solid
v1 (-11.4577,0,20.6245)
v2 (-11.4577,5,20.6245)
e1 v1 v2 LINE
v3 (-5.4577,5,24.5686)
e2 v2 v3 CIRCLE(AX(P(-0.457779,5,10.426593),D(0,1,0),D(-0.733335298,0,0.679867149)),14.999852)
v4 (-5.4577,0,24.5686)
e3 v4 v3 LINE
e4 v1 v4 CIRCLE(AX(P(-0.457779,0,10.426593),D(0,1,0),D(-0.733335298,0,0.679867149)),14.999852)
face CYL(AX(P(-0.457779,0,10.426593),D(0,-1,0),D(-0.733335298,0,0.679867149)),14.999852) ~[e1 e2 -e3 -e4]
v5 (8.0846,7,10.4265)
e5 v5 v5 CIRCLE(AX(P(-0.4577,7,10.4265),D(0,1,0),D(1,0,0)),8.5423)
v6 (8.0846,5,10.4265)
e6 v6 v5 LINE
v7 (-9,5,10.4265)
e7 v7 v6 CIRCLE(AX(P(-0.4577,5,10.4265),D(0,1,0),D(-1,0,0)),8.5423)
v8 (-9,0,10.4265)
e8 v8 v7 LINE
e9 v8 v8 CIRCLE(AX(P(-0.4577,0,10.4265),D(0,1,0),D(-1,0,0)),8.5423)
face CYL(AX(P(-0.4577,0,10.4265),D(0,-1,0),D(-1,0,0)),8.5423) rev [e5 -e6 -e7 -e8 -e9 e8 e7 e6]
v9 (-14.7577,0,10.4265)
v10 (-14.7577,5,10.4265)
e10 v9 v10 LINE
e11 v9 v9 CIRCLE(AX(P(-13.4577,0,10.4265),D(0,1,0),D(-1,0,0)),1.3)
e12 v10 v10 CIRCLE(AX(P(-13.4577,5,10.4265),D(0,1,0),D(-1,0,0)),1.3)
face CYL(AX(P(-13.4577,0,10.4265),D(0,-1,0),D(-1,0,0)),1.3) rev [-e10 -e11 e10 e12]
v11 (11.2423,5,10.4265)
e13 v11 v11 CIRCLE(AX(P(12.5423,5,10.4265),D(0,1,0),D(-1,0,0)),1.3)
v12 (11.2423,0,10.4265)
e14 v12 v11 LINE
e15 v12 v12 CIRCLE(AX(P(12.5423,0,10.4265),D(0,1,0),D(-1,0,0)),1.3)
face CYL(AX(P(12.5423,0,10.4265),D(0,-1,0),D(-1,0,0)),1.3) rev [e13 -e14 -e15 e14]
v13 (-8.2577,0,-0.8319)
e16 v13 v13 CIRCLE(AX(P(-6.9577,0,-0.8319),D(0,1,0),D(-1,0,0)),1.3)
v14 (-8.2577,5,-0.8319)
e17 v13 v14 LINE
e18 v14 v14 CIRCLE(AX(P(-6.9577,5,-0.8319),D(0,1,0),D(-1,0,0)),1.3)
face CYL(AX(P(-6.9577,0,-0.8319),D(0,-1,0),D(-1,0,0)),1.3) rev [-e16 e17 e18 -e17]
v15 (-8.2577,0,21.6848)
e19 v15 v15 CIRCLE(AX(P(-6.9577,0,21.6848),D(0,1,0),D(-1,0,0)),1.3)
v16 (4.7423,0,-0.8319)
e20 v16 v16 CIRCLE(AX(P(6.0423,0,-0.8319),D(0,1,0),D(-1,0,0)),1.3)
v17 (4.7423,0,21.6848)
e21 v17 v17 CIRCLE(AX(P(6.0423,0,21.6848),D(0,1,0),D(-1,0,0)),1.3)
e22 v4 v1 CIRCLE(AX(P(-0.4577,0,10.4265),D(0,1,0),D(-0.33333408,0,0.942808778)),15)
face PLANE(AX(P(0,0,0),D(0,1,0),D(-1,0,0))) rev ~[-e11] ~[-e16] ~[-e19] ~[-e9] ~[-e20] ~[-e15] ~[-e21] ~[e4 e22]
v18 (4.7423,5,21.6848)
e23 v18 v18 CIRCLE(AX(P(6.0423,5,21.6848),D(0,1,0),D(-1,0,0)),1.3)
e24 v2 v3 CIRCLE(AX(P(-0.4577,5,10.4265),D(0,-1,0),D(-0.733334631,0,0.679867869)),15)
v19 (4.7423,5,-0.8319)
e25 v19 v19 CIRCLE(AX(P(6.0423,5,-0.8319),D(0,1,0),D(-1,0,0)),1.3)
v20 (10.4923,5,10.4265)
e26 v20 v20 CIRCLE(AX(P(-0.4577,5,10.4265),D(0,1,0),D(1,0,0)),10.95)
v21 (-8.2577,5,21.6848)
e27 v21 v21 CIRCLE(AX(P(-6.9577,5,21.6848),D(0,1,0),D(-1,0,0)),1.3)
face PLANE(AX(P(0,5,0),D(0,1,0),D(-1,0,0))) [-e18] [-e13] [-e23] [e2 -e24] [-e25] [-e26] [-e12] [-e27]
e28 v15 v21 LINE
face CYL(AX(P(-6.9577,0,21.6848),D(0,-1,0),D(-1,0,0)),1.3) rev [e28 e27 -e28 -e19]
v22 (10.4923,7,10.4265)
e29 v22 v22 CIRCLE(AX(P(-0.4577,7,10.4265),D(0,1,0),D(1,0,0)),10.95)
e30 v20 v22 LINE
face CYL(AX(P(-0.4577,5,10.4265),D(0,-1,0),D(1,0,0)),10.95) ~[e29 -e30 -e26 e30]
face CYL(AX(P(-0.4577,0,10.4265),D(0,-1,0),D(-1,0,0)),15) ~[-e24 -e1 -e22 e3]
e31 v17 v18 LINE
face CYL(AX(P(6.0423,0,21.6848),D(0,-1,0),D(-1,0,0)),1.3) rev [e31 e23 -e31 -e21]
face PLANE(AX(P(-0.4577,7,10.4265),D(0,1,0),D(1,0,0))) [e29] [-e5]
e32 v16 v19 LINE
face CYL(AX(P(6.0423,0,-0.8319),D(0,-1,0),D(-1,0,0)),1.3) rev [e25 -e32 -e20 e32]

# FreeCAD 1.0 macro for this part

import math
import FreeCAD as App
import Part
import Sketcher

V = App.Vector

doc = App.newDocument("Part")
body = doc.addObject("PartDesign::Body", "Body")

sketch1 = body.newObject("Sketcher::SketchObject", "Sketch")
sketch1.AttachmentSupport = (doc.getObject("XZ_Plane"), [""])
sketch1.MapMode = "FlatFace"
sketch1.addGeometry([
    Part.ArcOfCircle(Part.Circle(V(-0.5, 10.4, 0), V(0, 0, 1), 15), math.radians(137), math.radians(469)),
    Part.ArcOfCircle(Part.Circle(V(-0.5, 10.4, 0), V(0, 0, 1), 15), math.radians(109), math.radians(137)),
    Part.Circle(V(6, -0.8, 0), V(0, 0, 1), 1.3),
    Part.Circle(V(-7, -0.8, 0), V(0, 0, 1), 1.3),
    Part.Circle(V(12.5, 10.4, 0), V(0, 0, 1), 1.3),
    Part.Circle(V(6, 21.7, 0), V(0, 0, 1), 1.3),
    Part.Circle(V(-0.5, 10.4, 0), V(0, 0, 1), 8.5),
    Part.Circle(V(-13.5, 10.4, 0), V(0, 0, 1), 1.3),
    Part.Circle(V(-7, 21.7, 0), V(0, 0, 1), 1.3),
], False)
sketch1.addConstraint([
    Sketcher.Constraint("Tangent", 0, 1, 1, 2),
    Sketcher.Constraint("Coincident", 1, 1, 0, 2),
    Sketcher.Constraint("Coincident", 6, 3, 0, 3),
    Sketcher.Constraint("Equal", 2, 3),
    Sketcher.Constraint("Equal", 3, 4),
    Sketcher.Constraint("Equal", 4, 5),
    Sketcher.Constraint("Equal", 5, 7),
    Sketcher.Constraint("Equal", 7, 8),
    Sketcher.Constraint("Horizontal", 2, 3, 3, 3),
    Sketcher.Constraint("Horizontal", 1, 3, 4, 3),
    Sketcher.Constraint("Horizontal", 6, 3, 7, 3),
    Sketcher.Constraint("Horizontal", 5, 3, 8, 3),
    Sketcher.Constraint("Vertical", 2, 3, 5, 3),
    Sketcher.Constraint("Vertical", 3, 3, 8, 3),
    Sketcher.Constraint("Diameter", 2, 2.6),
    Sketcher.Constraint("Radius", 0, 15.0),
    Sketcher.Constraint("DistanceX", 3, 3, 2, 3, 13.0),
    Sketcher.Constraint("DistanceX", 0, 3, 4, 3, 13.0),
    Sketcher.Constraint("DistanceX", 7, 3, 0, 3, 13.0),
    Sketcher.Constraint("DistanceX", 7, 3, 0, 1, 2.0),
    Sketcher.Constraint("DistanceX", 0, 1, 1, 1, 6.0),
    Sketcher.Constraint("Diameter", 6, 17.0846),
    Sketcher.Constraint("DistanceX", 0, 3, 2, 3, 6.5),
    Sketcher.Constraint("DistanceY", 2, 3, -1, 1, 0.832),
    Sketcher.Constraint("DistanceX", 0, 3, -1, 1, 0.4577),
    Sketcher.Constraint("DistanceY", -1, 1, 0, 3, 10.4265),
    Sketcher.Constraint("DistanceY", -1, 1, 5, 3, 21.6848),
])
pad1 = body.newObject("PartDesign::Pad", "Pad")
pad1.Profile = sketch1
pad1.Length = 5
pad1.Reversed = True

sketch2 = body.newObject("Sketcher::SketchObject", "Sketch001")
sketch2.AttachmentSupport = (doc.getObject("XZ_Plane"), [""])
sketch2.MapMode = "FlatFace"
sketch2.AttachmentOffset = App.Placement(V(0, 0, -5), App.Rotation())
sketch2.addGeometry([
    Part.Circle(V(0, 10, 0), V(0, 0, 1), 11),
    Part.Circle(V(0, 10, 0), V(0, 0, 1), 9),
], False)
sketch2.addConstraint([
    Sketcher.Constraint("Coincident", 1, 3, 0, 3),
    Sketcher.Constraint("Diameter", 0, 21.9),
    Sketcher.Constraint("Diameter", 1, 17.0846),
    Sketcher.Constraint("DistanceX", 0, 3, -1, 1, 0.4577),
    Sketcher.Constraint("DistanceY", -1, 1, 0, 3, 10.4265),
])
pad2 = body.newObject("PartDesign::Pad", "Pad001")
pad2.Profile = sketch2
pad2.Length = 2
pad2.Reversed = True

doc.recompute()
